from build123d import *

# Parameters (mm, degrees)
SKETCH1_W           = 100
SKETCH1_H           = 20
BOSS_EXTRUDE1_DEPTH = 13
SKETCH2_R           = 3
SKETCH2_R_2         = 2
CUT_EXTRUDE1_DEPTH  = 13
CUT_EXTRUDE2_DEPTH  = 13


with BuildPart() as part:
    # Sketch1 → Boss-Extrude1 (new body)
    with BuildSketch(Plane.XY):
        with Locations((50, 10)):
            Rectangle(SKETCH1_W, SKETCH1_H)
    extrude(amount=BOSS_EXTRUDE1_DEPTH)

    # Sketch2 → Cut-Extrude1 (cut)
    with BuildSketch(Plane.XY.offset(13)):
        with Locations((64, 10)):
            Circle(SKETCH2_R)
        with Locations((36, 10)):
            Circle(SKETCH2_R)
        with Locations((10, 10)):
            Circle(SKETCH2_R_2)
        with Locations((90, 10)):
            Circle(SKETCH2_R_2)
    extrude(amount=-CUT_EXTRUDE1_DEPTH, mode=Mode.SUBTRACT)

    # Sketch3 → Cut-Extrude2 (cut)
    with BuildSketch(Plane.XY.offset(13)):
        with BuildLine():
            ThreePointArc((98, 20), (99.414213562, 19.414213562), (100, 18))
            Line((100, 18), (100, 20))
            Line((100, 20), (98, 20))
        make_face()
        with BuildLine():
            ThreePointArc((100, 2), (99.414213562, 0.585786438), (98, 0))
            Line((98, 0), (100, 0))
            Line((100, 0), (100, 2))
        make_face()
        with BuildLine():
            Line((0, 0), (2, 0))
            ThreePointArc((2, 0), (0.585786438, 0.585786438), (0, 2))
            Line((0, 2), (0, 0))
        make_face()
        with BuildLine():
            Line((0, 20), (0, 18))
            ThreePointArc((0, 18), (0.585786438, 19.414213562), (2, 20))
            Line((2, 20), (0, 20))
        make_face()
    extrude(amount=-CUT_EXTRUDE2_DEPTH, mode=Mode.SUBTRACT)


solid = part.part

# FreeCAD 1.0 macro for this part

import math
import FreeCAD as App
import Part
import Sketcher


def add_polygon(sketch, points):
    """Adds a closed chain of lines whose ends are joined by coincident constraints."""
    first, n = sketch.GeometryCount, len(points)
    for a, b in zip(points, points[1:] + points[:1]):
        sketch.addGeometry(Part.LineSegment(App.Vector(*a, 0), App.Vector(*b, 0)), False)
    for i in range(n):
        sketch.addConstraint(Sketcher.Constraint("Coincident", first + i, 2, first + (i + 1) % n, 1))

doc = App.newDocument("Part")
params = doc.addObject("Spreadsheet::Sheet", "Params")
for row, (alias, value) in enumerate([
    ("sketch1_width", "100 mm"),
    ("sketch1_height", "20 mm"),
    ("pad1_length", "13 mm"),
    ("sketch2_diameter", "6 mm"),
    ("sketch2_diameter2", "4 mm"),
    ("pocket1_length", "13 mm"),
    ("sketch3_radius", "2 mm"),
    ("pocket2_length", "13 mm"),
], start=1):
    params.set(f"A{row}", alias)
    params.set(f"B{row}", "=" + value)
    params.setAlias(f"B{row}", alias)

body = doc.addObject("PartDesign::Body", "Body")

sketch1 = body.newObject("Sketcher::SketchObject", "Sketch")
sketch1.AttachmentSupport = (doc.getObject("XY_Plane"), [""])
sketch1.MapMode = "FlatFace"
add_polygon(sketch1, [(0, 20), (0, 0), (100, 0), (100, 20)])
sketch1.addConstraint([
    Sketcher.Constraint("Vertical", 0),
    Sketcher.Constraint("Horizontal", 1),
    Sketcher.Constraint("Vertical", 2),
    Sketcher.Constraint("Horizontal", 3),
    Sketcher.Constraint("Coincident", 0, 2, -1, 1),
    Sketcher.Constraint("DistanceX", 1, 1, 1, 2, 100.0),
    Sketcher.Constraint("DistanceY", 0, 2, 0, 1, 20.0),
])
sketch1.setExpression("Constraints[9]", "Params.sketch1_width")
sketch1.setExpression("Constraints[10]", "Params.sketch1_height")
pad1 = body.newObject("PartDesign::Pad", "Pad")
pad1.Profile = sketch1
pad1.setExpression("Length", "Params.pad1_length")

sketch2 = body.newObject("Sketcher::SketchObject", "Sketch001")
sketch2.AttachmentSupport = (doc.getObject("XY_Plane"), [""])
sketch2.MapMode = "FlatFace"
sketch2.AttachmentOffset = App.Placement(App.Vector(0, 0, 13), App.Rotation())
sketch2.addGeometry([
    Part.Circle(App.Vector(64, 10, 0), App.Vector(0, 0, 1), 3),
    Part.Circle(App.Vector(36, 10, 0), App.Vector(0, 0, 1), 3),
    Part.Circle(App.Vector(10, 10, 0), App.Vector(0, 0, 1), 2),
    Part.Circle(App.Vector(90, 10, 0), App.Vector(0, 0, 1), 2),
], False)
sketch2.addConstraint([
    Sketcher.Constraint("Equal", 0, 1),
    Sketcher.Constraint("Equal", 2, 3),
    Sketcher.Constraint("Horizontal", 0, 3, 1, 3),
    Sketcher.Constraint("Horizontal", 1, 3, 2, 3),
    Sketcher.Constraint("Horizontal", 2, 3, 3, 3),
    Sketcher.Constraint("Diameter", 0, 6.0),
    Sketcher.Constraint("Diameter", 2, 4.0),
    Sketcher.Constraint("DistanceX", -1, 1, 0, 3, 64.0),
    Sketcher.Constraint("DistanceY", -1, 1, 0, 3, 10.0),
    Sketcher.Constraint("DistanceX", -1, 1, 1, 3, 36.0),
    Sketcher.Constraint("DistanceX", -1, 1, 2, 3, 10.0),
    Sketcher.Constraint("DistanceX", -1, 1, 3, 3, 90.0),
])
sketch2.setExpression("Constraints[5]", "Params.sketch2_diameter")
sketch2.setExpression("Constraints[6]", "Params.sketch2_diameter2")
pocket1 = body.newObject("PartDesign::Pocket", "Pocket")
pocket1.Profile = sketch2
pocket1.setExpression("Length", "Params.pocket1_length")

sketch3 = body.newObject("Sketcher::SketchObject", "Sketch002")
sketch3.AttachmentSupport = (doc.getObject("XY_Plane"), [""])
sketch3.MapMode = "FlatFace"
sketch3.AttachmentOffset = App.Placement(App.Vector(0, 0, 13), App.Rotation())
sketch3.addGeometry([
    Part.ArcOfCircle(Part.Circle(App.Vector(98, 18, 0), App.Vector(0, 0, 1), 2), math.radians(0), math.radians(90)),
    Part.LineSegment(App.Vector(100, 18, 0), App.Vector(100, 20, 0)),
    Part.LineSegment(App.Vector(100, 20, 0), App.Vector(98, 20, 0)),
    Part.ArcOfCircle(Part.Circle(App.Vector(98, 2, 0), App.Vector(0, 0, 1), 2), math.radians(-90), math.radians(0)),
    Part.LineSegment(App.Vector(98, 0, 0), App.Vector(100, 0, 0)),
    Part.LineSegment(App.Vector(100, 0, 0), App.Vector(100, 2, 0)),
    Part.LineSegment(App.Vector(0, 0, 0), App.Vector(2, 0, 0)),
    Part.ArcOfCircle(Part.Circle(App.Vector(2, 2, 0), App.Vector(0, 0, 1), 2), math.radians(-180), math.radians(-90)),
    Part.LineSegment(App.Vector(0, 2, 0), App.Vector(0, 0, 0)),
    Part.LineSegment(App.Vector(0, 20, 0), App.Vector(0, 18, 0)),
    Part.ArcOfCircle(Part.Circle(App.Vector(2, 18, 0), App.Vector(0, 0, 1), 2), math.radians(90), math.radians(180)),
    Part.LineSegment(App.Vector(2, 20, 0), App.Vector(0, 20, 0)),
], False)
sketch3.addConstraint([
    Sketcher.Constraint("Tangent", 0, 1, 1, 1),
    Sketcher.Constraint("Coincident", 1, 2, 2, 1),
    Sketcher.Constraint("Tangent", 2, 2, 0, 2),
    Sketcher.Constraint("Tangent", 3, 1, 4, 1),
    Sketcher.Constraint("Coincident", 4, 2, 5, 1),
    Sketcher.Constraint("Tangent", 5, 2, 3, 2),
    Sketcher.Constraint("Tangent", 6, 2, 7, 2),
    Sketcher.Constraint("Tangent", 7, 1, 8, 1),
    Sketcher.Constraint("Coincident", 8, 2, 6, 1),
    Sketcher.Constraint("Tangent", 9, 2, 10, 2),
    Sketcher.Constraint("Tangent", 10, 1, 11, 1),
    Sketcher.Constraint("Coincident", 11, 2, 9, 1),
    Sketcher.Constraint("Vertical", 1),
    Sketcher.Constraint("Horizontal", 2),
    Sketcher.Constraint("Horizontal", 4),
    Sketcher.Constraint("Vertical", 5),
    Sketcher.Constraint("Horizontal", 6),
    Sketcher.Constraint("Vertical", 8),
    Sketcher.Constraint("Vertical", 9),
    Sketcher.Constraint("Horizontal", 11),
    Sketcher.Constraint("Coincident", 8, 2, -1, 1),
    Sketcher.Constraint("Equal", 0, 3),
    Sketcher.Constraint("Equal", 3, 7),
    Sketcher.Constraint("Equal", 7, 10),
    Sketcher.Constraint("PointOnObject", 3, 1, -1),
    Sketcher.Constraint("PointOnObject", 9, 2, -2),
    Sketcher.Constraint("Horizontal", 0, 3, 10, 3),
    Sketcher.Constraint("Vertical", 0, 3, 3, 3),
    Sketcher.Constraint("Radius", 0, 2.0),
    Sketcher.Constraint("DistanceX", -1, 1, 0, 3, 98.0),
    Sketcher.Constraint("DistanceY", -1, 1, 0, 3, 18.0),
])
sketch3.setExpression("Constraints[28]", "Params.sketch3_radius")
pocket2 = body.newObject("PartDesign::Pocket", "Pocket001")
pocket2.Profile = sketch3
pocket2.setExpression("Length", "Params.pocket2_length")

doc.recompute()
